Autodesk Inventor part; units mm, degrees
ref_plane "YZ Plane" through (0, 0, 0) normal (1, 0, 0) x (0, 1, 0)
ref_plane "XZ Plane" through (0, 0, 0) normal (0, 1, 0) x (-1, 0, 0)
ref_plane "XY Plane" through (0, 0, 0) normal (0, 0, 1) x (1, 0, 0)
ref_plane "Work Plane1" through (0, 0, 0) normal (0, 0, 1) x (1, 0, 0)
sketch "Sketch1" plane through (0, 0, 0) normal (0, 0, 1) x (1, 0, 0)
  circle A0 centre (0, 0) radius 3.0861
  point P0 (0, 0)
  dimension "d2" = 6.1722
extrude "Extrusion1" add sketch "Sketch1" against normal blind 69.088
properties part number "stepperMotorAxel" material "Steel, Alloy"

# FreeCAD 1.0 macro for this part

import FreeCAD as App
import Part
import Sketcher
from FreeCAD import Vector
Q = App.Units.Quantity

doc = App.newDocument("Part")
body = doc.addObject("PartDesign::Body", "Body")

sketch1 = body.newObject("Sketcher::SketchObject", "Sketch")
sketch1.AttachmentSupport = (doc.getObject("XY_Plane"), [""])
sketch1.MapMode = "FlatFace"
sketch1.addGeometry(Part.Circle(Vector(0, 0, 0), Vector(0, 0, 1), 3.0861), False)
sketch1.addConstraint([
    Sketcher.Constraint("Coincident", 0, 3, -1, 1),
    Sketcher.Constraint("Diameter", 0, Q("0.243 in")),
])
pad1 = body.newObject("PartDesign::Pad", "Pad")
pad1.Profile = sketch1
pad1.Length = Q("2.72 in")
pad1.Reversed = True

doc.recompute()
